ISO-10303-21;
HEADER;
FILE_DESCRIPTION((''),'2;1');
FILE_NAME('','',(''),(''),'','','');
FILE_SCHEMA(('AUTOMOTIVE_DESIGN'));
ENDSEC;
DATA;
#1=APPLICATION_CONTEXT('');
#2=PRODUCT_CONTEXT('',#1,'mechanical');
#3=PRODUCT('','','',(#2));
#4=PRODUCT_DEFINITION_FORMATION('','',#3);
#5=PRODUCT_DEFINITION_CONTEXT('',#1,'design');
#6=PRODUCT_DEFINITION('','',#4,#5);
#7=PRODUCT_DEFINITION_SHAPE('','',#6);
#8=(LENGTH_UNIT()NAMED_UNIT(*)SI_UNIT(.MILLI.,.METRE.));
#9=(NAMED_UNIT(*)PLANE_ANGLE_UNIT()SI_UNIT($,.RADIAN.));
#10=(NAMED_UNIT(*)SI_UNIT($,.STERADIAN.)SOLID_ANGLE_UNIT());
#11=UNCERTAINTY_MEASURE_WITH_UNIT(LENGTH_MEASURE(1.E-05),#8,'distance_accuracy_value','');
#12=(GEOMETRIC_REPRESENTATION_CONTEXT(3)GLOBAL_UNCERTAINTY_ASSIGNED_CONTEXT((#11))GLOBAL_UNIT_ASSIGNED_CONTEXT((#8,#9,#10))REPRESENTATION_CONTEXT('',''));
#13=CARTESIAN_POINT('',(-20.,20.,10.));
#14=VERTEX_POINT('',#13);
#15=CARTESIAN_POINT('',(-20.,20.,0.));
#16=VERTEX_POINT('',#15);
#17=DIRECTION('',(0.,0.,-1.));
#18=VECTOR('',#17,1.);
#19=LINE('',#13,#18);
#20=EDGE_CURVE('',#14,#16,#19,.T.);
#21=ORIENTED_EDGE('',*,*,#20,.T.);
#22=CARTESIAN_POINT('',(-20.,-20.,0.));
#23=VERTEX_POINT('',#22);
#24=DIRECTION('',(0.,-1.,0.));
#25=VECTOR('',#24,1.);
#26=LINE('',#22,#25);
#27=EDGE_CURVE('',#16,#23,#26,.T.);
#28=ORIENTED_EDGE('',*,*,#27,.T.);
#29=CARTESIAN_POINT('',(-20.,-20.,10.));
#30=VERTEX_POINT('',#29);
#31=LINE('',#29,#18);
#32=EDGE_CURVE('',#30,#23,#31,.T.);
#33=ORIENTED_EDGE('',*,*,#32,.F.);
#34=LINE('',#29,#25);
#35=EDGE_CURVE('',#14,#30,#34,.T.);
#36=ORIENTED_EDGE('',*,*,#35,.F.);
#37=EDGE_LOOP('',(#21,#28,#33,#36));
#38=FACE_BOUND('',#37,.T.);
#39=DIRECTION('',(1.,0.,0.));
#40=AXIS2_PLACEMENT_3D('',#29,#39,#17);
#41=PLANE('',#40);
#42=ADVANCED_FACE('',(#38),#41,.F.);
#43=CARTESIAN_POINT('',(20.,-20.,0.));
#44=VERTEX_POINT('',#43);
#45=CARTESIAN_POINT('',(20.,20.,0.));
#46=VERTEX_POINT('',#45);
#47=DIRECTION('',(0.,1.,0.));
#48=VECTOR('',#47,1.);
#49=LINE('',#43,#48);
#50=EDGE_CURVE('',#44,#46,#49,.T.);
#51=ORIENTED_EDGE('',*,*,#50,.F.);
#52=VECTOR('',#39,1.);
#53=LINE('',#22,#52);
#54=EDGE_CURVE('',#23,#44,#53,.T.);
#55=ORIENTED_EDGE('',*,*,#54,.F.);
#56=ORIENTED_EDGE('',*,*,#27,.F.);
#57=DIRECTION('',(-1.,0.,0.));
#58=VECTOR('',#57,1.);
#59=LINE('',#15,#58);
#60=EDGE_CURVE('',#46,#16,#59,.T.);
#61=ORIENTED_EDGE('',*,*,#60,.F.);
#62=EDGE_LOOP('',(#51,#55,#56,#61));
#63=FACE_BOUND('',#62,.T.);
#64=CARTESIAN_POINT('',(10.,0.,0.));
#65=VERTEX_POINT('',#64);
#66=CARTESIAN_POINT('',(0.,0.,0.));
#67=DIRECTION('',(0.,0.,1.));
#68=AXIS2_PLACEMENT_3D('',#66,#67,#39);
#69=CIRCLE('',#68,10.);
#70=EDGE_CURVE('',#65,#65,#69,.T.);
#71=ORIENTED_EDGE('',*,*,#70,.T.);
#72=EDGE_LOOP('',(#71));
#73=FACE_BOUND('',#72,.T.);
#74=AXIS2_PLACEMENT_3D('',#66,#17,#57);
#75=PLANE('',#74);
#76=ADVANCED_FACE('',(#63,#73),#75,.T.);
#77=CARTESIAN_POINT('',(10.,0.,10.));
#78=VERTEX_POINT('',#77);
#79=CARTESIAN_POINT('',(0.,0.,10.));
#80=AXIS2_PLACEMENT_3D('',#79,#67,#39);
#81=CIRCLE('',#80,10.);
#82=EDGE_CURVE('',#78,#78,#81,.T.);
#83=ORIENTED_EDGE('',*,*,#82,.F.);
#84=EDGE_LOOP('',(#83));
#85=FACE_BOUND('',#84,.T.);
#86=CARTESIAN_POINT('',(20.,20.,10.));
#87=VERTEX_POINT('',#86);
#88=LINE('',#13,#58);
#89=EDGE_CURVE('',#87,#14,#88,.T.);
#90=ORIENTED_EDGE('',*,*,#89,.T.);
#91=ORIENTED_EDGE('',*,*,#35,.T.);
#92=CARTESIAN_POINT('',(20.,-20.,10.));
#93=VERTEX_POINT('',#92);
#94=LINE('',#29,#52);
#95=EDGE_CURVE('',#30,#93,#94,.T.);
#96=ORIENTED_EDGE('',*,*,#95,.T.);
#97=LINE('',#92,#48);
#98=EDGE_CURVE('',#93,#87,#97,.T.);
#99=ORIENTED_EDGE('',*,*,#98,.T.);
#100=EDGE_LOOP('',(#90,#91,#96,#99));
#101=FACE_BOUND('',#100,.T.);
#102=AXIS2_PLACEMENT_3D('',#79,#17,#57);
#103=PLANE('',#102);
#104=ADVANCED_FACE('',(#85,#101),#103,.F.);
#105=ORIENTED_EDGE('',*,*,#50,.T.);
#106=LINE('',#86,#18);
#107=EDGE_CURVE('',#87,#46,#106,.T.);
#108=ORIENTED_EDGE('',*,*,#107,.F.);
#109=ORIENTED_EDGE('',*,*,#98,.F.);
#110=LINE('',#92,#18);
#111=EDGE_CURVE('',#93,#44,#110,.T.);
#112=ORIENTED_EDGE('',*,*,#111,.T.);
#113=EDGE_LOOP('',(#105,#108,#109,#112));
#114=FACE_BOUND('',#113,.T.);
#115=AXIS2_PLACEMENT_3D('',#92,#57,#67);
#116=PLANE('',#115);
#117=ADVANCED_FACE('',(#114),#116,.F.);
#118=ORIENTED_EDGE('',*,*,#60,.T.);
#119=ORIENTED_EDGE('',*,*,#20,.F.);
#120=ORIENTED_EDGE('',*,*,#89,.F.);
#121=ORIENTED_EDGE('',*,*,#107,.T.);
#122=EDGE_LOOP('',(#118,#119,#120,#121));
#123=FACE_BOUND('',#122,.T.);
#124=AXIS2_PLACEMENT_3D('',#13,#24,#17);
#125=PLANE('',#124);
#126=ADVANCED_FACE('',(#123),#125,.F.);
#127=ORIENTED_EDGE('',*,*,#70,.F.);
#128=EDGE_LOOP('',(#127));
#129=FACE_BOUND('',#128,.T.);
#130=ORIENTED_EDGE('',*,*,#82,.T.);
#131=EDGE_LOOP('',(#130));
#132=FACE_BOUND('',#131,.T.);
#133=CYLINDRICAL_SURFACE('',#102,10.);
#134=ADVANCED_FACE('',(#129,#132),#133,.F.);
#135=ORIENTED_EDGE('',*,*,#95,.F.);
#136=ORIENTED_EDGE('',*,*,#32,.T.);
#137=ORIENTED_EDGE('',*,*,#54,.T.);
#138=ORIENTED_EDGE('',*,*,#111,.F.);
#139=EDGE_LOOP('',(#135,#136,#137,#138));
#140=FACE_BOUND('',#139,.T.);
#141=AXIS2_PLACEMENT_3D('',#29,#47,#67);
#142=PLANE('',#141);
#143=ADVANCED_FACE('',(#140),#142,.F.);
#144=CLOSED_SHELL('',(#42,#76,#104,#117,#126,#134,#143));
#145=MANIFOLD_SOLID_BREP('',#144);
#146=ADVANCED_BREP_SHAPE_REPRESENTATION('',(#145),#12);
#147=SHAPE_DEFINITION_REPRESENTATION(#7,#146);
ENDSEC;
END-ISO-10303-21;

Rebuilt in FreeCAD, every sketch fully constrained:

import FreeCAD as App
import Part
import Sketcher
from FreeCAD import Vector
Q = App.Units.Quantity


def add_polygon(sketch, points):
    """Adds a closed chain of lines whose ends are joined by coincident constraints."""
    first, n = sketch.GeometryCount, len(points)
    for a, b in zip(points, points[1:] + points[:1]):
        sketch.addGeometry(Part.LineSegment(App.Vector(*a, 0), App.Vector(*b, 0)), False)
    for i in range(n):
        sketch.addConstraint(Sketcher.Constraint("Coincident", first + i, 2, first + (i + 1) % n, 1))

doc = App.newDocument("Part")
body = doc.addObject("PartDesign::Body", "Body")

sketch1 = body.newObject("Sketcher::SketchObject", "Sketch")
sketch1.AttachmentSupport = (doc.getObject("XY_Plane"), [""])
sketch1.MapMode = "FlatFace"
add_polygon(sketch1, [(-20, 20), (-20, -20), (20, -20), (20, 20)])
sketch1.addGeometry(Part.Circle(Vector(0, 0, 0), Vector(0, 0, 1), 10), False)
sketch1.addConstraint(Sketcher.Constraint("Vertical", 0))
sketch1.addConstraint(Sketcher.Constraint("Horizontal", 1))
sketch1.addConstraint(Sketcher.Constraint("Vertical", 2))
sketch1.addConstraint(Sketcher.Constraint("Horizontal", 3))
sketch1.addConstraint(Sketcher.Constraint("Coincident", 4, 3, -1, 1))
sketch1.addConstraint(Sketcher.Constraint("Symmetric", 0, 2, 2, 2, -1, 1))
sketch1.addConstraint(Sketcher.Constraint("Equal", 3, 0))
sketch1.addConstraint(Sketcher.Constraint("Diameter", 4, Q("20 mm")))
sketch1.addConstraint(Sketcher.Constraint("DistanceX", 1, 1, 1, 2, Q("40 mm")))
pad1 = body.newObject("PartDesign::Pad", "Pad")
pad1.Profile = sketch1
pad1.Length = 10

doc.recompute()
